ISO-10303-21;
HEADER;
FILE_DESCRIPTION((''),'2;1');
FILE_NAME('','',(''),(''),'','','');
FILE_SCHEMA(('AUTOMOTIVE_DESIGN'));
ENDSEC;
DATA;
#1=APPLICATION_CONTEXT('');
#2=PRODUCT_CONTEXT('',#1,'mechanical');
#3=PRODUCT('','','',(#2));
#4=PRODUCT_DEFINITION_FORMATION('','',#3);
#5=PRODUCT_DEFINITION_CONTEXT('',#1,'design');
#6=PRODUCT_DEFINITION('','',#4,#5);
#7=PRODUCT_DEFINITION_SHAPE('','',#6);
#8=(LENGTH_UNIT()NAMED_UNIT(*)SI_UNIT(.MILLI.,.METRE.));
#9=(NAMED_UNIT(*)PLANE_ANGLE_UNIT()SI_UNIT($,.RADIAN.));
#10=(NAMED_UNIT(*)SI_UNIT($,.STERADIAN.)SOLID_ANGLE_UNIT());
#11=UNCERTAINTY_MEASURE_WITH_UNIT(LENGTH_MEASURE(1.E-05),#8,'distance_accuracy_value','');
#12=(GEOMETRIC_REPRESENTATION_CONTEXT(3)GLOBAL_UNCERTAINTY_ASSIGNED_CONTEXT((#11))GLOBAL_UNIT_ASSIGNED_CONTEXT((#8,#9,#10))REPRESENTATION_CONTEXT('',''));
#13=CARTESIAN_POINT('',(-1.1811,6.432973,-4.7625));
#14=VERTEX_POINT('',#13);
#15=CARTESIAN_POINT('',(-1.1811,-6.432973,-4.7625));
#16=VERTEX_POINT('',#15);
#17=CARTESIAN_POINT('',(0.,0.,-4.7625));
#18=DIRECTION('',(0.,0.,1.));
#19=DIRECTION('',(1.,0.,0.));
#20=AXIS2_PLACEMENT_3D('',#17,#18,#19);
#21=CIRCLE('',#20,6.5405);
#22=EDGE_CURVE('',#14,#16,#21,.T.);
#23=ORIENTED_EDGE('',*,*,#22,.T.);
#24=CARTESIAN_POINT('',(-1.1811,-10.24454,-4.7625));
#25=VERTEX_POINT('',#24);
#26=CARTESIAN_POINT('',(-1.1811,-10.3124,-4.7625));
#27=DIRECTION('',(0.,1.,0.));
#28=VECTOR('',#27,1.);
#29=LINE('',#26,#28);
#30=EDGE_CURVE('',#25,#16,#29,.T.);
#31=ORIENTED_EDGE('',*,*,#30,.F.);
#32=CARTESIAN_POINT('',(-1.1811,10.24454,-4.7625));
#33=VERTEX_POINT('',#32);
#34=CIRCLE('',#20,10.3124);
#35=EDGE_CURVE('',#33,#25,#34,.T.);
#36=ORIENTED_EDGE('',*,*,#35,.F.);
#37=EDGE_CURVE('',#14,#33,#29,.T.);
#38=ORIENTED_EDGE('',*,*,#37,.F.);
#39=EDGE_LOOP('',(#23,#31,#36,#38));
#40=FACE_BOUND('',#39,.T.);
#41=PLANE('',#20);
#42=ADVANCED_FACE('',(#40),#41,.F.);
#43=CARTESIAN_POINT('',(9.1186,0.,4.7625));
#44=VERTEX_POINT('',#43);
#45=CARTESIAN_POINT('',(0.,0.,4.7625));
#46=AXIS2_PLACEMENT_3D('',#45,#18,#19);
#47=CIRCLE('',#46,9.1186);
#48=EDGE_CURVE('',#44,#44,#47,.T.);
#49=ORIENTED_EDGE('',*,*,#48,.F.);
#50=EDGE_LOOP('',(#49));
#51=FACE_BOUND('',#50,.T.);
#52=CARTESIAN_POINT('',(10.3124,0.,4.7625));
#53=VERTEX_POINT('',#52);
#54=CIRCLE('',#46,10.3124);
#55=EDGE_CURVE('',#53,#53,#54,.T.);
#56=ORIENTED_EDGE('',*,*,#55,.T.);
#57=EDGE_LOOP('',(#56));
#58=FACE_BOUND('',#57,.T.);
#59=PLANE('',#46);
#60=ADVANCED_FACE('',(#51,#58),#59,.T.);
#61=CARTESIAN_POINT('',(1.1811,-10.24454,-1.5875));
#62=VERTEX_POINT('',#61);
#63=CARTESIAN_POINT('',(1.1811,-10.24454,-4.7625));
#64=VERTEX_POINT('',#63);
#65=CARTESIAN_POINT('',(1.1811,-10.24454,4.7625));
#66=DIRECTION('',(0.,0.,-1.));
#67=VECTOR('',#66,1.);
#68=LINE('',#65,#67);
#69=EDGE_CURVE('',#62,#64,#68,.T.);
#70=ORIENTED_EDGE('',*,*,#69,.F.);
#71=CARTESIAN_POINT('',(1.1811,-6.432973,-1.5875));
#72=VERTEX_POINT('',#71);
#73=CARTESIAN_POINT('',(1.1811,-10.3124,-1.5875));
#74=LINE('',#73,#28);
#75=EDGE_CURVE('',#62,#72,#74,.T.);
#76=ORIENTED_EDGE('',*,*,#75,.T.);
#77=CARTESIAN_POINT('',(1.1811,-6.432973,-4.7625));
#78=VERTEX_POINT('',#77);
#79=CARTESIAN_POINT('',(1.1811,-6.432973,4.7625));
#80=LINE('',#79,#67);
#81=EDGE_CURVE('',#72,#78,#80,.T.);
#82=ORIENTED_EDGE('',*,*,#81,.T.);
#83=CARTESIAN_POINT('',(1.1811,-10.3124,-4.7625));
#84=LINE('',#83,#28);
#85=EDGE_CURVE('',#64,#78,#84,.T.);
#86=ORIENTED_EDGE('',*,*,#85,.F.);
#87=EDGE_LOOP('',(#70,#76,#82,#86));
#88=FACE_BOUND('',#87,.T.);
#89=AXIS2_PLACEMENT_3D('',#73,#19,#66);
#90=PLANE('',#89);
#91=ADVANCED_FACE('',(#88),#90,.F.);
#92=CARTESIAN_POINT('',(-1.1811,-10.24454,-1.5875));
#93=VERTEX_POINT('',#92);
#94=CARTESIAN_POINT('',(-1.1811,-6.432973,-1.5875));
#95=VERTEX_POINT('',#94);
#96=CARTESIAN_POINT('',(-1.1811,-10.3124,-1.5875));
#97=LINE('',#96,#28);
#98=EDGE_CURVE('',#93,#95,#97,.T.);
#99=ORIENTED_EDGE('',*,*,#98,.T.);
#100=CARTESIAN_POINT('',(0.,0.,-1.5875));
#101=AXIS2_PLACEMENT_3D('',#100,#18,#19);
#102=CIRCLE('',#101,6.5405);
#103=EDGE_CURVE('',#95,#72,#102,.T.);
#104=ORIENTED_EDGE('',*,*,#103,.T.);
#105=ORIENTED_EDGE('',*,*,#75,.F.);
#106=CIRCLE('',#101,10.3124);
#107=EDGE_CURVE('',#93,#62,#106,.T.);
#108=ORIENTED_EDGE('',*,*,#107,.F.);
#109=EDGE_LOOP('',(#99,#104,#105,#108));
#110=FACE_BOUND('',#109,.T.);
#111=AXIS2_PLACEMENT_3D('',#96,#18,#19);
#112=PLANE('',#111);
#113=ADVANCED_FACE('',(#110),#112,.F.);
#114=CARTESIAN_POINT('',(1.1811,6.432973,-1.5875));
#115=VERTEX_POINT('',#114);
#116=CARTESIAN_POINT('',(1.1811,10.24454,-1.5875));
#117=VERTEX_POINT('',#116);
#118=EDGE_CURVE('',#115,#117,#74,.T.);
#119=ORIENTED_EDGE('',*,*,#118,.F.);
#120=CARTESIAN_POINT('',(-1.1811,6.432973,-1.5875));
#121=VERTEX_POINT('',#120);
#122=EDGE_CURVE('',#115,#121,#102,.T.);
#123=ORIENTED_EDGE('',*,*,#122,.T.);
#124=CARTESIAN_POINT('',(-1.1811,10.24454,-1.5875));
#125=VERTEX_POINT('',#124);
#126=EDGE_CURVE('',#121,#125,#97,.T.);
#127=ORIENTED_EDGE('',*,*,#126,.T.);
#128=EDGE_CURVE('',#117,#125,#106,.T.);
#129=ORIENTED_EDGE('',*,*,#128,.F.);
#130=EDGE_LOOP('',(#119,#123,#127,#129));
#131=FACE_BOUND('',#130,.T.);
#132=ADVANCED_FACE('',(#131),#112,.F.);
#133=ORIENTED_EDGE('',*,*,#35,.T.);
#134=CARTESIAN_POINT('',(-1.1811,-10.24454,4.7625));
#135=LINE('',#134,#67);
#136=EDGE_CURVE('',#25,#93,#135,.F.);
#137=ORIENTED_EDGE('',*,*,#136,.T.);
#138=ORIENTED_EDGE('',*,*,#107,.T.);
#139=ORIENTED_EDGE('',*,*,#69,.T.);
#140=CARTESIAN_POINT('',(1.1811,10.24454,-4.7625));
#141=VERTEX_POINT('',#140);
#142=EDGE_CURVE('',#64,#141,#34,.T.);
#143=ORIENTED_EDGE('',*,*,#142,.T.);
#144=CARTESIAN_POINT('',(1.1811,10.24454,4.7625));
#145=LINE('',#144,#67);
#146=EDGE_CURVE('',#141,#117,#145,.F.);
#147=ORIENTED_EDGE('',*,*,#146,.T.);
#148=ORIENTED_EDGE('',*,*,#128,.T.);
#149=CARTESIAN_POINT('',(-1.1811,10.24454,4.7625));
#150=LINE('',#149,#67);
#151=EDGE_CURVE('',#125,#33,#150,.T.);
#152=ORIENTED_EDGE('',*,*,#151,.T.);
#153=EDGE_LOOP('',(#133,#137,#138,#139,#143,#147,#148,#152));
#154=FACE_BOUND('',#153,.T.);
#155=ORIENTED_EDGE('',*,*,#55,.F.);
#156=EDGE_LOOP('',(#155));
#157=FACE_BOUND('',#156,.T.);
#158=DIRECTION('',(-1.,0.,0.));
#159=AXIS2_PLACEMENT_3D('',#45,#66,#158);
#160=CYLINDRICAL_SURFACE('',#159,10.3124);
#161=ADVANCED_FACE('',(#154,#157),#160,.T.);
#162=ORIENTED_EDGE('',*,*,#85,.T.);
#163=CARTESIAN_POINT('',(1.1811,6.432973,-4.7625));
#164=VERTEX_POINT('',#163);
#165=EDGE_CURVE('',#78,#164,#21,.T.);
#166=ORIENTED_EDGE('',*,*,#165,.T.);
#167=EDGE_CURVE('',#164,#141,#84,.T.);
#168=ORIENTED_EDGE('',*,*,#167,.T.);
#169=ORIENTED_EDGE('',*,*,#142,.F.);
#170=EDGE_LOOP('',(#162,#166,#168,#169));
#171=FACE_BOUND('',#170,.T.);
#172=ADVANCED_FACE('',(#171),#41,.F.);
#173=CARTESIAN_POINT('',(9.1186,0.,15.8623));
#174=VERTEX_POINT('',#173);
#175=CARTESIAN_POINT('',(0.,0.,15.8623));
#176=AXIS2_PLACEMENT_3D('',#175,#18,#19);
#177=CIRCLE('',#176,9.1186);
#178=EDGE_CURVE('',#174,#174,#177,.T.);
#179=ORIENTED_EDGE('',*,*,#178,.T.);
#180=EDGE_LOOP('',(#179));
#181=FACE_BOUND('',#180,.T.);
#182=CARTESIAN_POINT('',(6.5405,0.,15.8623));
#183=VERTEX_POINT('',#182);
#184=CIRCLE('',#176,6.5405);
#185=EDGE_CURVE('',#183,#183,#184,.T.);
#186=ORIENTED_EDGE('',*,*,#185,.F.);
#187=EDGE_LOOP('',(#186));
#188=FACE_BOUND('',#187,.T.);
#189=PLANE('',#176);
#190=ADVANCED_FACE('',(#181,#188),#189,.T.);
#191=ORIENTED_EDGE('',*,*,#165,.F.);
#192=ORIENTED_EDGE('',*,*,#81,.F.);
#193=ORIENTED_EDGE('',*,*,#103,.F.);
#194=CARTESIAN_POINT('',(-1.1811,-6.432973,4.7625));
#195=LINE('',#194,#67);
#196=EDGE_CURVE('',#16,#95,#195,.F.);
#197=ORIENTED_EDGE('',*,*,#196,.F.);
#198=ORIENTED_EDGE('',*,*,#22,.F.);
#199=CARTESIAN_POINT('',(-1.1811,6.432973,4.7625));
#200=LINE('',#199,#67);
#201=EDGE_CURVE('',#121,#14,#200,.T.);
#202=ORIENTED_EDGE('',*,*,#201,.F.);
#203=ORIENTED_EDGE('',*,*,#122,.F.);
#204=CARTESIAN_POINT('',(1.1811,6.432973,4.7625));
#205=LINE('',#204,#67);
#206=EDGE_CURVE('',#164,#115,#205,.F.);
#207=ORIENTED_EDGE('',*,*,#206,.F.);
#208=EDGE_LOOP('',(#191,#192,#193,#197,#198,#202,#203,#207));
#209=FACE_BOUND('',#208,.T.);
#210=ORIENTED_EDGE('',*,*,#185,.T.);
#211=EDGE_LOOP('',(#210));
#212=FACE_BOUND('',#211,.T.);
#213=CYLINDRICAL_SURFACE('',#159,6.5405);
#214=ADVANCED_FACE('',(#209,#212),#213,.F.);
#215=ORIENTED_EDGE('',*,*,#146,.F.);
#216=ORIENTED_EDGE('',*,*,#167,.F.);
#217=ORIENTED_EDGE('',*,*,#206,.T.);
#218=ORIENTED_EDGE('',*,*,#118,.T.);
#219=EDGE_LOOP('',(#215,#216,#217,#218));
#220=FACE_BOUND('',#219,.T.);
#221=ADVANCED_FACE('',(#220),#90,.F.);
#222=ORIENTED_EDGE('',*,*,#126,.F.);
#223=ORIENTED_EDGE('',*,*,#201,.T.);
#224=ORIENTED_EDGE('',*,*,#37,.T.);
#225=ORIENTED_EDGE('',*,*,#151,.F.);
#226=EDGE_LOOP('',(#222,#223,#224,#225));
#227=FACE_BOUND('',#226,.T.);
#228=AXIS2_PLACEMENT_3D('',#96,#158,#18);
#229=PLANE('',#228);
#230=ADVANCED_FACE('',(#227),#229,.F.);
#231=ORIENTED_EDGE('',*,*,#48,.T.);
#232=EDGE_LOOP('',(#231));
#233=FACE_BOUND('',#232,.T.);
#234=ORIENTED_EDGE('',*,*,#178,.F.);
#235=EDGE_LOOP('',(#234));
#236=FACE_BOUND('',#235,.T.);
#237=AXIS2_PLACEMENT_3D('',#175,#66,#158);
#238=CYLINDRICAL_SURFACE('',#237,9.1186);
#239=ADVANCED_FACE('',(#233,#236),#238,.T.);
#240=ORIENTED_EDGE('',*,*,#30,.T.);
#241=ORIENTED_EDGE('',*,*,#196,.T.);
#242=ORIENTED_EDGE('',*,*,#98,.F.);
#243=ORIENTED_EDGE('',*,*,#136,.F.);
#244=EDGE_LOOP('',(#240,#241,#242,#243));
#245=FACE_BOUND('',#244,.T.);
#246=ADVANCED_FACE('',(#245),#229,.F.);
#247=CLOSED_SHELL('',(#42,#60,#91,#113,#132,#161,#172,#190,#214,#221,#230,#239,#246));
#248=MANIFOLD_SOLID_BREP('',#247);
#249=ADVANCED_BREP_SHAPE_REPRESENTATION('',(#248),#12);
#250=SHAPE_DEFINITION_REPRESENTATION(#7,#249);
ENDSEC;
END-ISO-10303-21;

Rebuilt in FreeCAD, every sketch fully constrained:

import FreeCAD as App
import Part
import Sketcher

V = App.Vector
Q = App.Units.Quantity


def add_polygon(sketch, points):
    """Adds a closed chain of lines whose ends are joined by coincident constraints."""
    first, n = sketch.GeometryCount, len(points)
    for a, b in zip(points, points[1:] + points[:1]):
        sketch.addGeometry(Part.LineSegment(App.Vector(*a, 0), App.Vector(*b, 0)), False)
    for i in range(n):
        sketch.addConstraint(Sketcher.Constraint("Coincident", first + i, 2, first + (i + 1) % n, 1))

doc = App.newDocument("Part")
body = doc.addObject("PartDesign::Body", "Body")

# Sketch on XY plane
sketch1 = body.newObject("Sketcher::SketchObject", "Sketch")
sketch1.AttachmentSupport = (doc.getObject("XY_Plane"), [""])
sketch1.MapMode = "FlatFace"
sketch1.addGeometry([
    Part.Circle(V(0, 0, 0), V(0, 0, 1), 10),
    Part.Circle(V(0, 0, 0), V(0, 0, 1), 7),
], False)
sketch1.addConstraint([
    Sketcher.Constraint("Coincident", 0, 3, -1, 1),
    Sketcher.Constraint("Coincident", 1, 3, -1, 1),
    Sketcher.Constraint("Diameter", 0, Q("0.812 in")),
    Sketcher.Constraint("Diameter", 1, Q("0.515 in")),
])
pad1 = body.newObject("PartDesign::Pad", "Pad")
pad1.Profile = sketch1
pad1.Length = Q("0.375 in")
pad1.Midplane = True

# Sketch on XY plane
sketch2 = body.newObject("Sketcher::SketchObject", "Sketch001")
sketch2.AttachmentSupport = (doc.getObject("XY_Plane"), [""])
sketch2.MapMode = "FlatFace"
sketch2.AttachmentOffset = App.Placement(V(0, 0, 0.1875 * 25.4), App.Rotation())
sketch2.addGeometry([
    Part.Circle(V(0, 0, 0), V(0, 0, 1), 9),
    Part.Circle(V(0, 0, 0), V(0, 0, 1), 7),
], False)
sketch2.addConstraint([
    Sketcher.Constraint("Coincident", 0, 3, -1, 1),
    Sketcher.Constraint("Coincident", 1, 3, -1, 1),
    Sketcher.Constraint("Diameter", 0, Q("0.718 in")),
    Sketcher.Constraint("Diameter", 1, Q("0.515 in")),
])
pad2 = body.newObject("PartDesign::Pad", "Pad001")
pad2.Profile = sketch2
pad2.Length = Q("0.437 in")

# Sketch on XZ plane
sketch3 = body.newObject("Sketcher::SketchObject", "Sketch002")
sketch3.AttachmentSupport = (doc.getObject("XZ_Plane"), [""])
sketch3.MapMode = "FlatFace"
add_polygon(sketch3, [(-1.2, -4.8), (-1.2, -1.6), (1.2, -1.6), (1.2, -4.8)])  # lines 0-3
sketch3.addConstraint([
    Sketcher.Constraint("Vertical", 0),
    Sketcher.Constraint("Horizontal", 1),
    Sketcher.Constraint("Vertical", 2),
    Sketcher.Constraint("Horizontal", 3),
    Sketcher.Constraint("DistanceX", 1, 1, 1, 2, Q("0.093 in")),
    Sketcher.Constraint("DistanceY", 0, 1, 0, 2, Q("0.125 in")),
    Sketcher.Constraint("DistanceY", 0, 2, -1, 1, Q("0.0625 in")),
    Sketcher.Constraint("DistanceX", 0, 2, -1, 1, Q("0.0465 in")),
])
pocket1 = body.newObject("PartDesign::Pocket", "Pocket")
pocket1.Profile = sketch3
pocket1.Type = "ThroughAll"
pocket1.Midplane = True

doc.recompute()
